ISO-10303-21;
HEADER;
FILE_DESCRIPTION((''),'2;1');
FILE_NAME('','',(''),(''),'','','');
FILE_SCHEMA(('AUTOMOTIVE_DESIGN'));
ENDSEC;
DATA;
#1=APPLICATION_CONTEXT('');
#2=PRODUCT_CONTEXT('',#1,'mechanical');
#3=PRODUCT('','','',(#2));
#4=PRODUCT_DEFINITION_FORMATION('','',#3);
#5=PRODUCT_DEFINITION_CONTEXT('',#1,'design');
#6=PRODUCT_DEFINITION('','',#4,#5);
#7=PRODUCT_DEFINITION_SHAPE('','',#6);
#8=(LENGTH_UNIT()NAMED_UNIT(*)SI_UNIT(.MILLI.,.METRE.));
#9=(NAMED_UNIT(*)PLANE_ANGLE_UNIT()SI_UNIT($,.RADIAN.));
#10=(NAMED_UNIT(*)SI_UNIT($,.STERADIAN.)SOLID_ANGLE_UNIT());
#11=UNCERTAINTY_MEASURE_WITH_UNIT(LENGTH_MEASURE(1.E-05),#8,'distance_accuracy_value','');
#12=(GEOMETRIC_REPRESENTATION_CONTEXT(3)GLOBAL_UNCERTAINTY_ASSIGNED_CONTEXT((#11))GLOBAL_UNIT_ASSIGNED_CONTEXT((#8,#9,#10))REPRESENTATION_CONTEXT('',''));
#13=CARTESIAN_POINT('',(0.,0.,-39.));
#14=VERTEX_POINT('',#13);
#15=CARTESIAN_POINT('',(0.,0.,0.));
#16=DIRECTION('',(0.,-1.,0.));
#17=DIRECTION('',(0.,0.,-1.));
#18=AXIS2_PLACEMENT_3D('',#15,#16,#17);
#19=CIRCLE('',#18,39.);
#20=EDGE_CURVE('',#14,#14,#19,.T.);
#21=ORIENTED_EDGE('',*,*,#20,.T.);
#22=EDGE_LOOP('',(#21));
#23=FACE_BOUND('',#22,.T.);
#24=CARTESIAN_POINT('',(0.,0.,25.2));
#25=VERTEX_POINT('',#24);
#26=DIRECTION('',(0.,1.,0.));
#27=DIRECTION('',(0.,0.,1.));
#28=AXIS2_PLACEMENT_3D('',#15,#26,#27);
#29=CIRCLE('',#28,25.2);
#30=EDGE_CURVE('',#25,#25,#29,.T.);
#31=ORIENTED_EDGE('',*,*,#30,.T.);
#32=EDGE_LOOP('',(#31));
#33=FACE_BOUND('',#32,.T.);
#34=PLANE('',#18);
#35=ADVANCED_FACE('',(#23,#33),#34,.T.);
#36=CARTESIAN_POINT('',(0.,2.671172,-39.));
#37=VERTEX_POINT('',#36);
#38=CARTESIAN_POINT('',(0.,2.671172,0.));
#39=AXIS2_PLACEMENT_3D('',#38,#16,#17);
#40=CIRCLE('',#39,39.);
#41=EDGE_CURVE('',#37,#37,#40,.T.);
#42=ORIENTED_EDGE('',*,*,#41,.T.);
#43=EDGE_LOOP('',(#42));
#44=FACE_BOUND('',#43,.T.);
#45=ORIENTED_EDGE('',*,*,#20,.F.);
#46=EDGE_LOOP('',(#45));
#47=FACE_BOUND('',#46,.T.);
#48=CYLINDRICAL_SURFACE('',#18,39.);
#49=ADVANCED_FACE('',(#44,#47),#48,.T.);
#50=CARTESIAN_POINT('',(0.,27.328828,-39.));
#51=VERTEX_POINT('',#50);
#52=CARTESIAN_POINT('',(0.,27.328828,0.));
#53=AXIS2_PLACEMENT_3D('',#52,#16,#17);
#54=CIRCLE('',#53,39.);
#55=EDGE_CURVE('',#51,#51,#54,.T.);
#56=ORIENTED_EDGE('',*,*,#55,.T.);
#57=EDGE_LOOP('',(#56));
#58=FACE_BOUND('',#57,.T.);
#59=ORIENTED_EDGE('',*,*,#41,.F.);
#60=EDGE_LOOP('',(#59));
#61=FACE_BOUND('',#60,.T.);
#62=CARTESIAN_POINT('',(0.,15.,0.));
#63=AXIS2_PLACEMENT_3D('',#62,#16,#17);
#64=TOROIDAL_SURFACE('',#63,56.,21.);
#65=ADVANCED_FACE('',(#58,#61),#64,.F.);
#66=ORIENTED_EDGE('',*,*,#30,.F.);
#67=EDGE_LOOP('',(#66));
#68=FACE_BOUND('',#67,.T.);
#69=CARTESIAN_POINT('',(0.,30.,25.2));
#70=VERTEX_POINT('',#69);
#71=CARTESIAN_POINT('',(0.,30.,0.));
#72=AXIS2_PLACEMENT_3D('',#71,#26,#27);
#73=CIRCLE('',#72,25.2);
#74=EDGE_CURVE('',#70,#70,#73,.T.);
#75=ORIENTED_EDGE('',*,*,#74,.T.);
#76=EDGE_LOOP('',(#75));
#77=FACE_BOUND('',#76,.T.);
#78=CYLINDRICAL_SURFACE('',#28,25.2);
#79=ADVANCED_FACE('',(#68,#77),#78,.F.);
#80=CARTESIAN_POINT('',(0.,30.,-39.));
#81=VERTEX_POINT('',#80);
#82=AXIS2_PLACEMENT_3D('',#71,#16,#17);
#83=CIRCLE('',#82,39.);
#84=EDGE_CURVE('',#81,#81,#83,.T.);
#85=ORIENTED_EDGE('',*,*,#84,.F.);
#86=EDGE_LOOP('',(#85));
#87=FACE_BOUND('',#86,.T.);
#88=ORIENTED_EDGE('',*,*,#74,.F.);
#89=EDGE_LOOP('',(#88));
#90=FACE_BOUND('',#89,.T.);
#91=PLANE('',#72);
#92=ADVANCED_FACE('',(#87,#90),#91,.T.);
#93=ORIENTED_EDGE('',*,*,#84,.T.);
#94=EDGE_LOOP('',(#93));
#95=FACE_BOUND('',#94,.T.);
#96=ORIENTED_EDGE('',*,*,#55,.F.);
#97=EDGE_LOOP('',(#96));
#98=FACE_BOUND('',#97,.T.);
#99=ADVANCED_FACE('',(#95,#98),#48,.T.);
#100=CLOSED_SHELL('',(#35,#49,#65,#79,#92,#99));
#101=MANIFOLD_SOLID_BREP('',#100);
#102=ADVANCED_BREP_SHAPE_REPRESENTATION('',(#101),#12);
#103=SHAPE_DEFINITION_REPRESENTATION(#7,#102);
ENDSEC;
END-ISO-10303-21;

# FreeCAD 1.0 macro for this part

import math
import FreeCAD as App
import Part
import Sketcher
from FreeCAD import Vector
Q = App.Units.Quantity

doc = App.newDocument("Part")
body = doc.addObject("PartDesign::Body", "Body")

# Sketch on XY plane
sketch1 = body.newObject("Sketcher::SketchObject", "Sketch")
sketch1.AttachmentSupport = (doc.getObject("XY_Plane"), [""])
sketch1.MapMode = "FlatFace"
sketch1.addGeometry(Part.LineSegment(Vector(39, 27.3, 0), Vector(39, 30, 0)), False)
sketch1.addGeometry(Part.LineSegment(Vector(39, 30, 0), Vector(0, 30, 0)), False)
sketch1.addGeometry(Part.LineSegment(Vector(0, 30, 0), Vector(0, 0, 0)), False)
sketch1.addGeometry(Part.LineSegment(Vector(0, 0, 0), Vector(39, 0, 0)), False)
sketch1.addGeometry(Part.LineSegment(Vector(39, 0, 0), Vector(39, 2.7, 0)), False)
sketch1.addGeometry(Part.ArcOfCircle(Part.Circle(Vector(56, 15, 0), Vector(0, 0, 1), 21), math.radians(144), math.radians(216)), False)
sketch1.addConstraint(Sketcher.Constraint("Coincident", 0, 2, 1, 1))
sketch1.addConstraint(Sketcher.Constraint("Coincident", 1, 2, 2, 1))
sketch1.addConstraint(Sketcher.Constraint("Coincident", 2, 2, 3, 1))
sketch1.addConstraint(Sketcher.Constraint("Coincident", 3, 2, 4, 1))
sketch1.addConstraint(Sketcher.Constraint("Coincident", 4, 2, 5, 2))
sketch1.addConstraint(Sketcher.Constraint("Coincident", 5, 1, 0, 1))
sketch1.addConstraint(Sketcher.Constraint("Vertical", 0))
sketch1.addConstraint(Sketcher.Constraint("Horizontal", 1))
sketch1.addConstraint(Sketcher.Constraint("Vertical", 2))
sketch1.addConstraint(Sketcher.Constraint("Horizontal", 3))
sketch1.addConstraint(Sketcher.Constraint("Vertical", 4))
sketch1.addConstraint(Sketcher.Constraint("Coincident", 2, 2, -1, 1))
sketch1.addConstraint(Sketcher.Constraint("Vertical", 0, 2, 3, 2))
sketch1.addConstraint(Sketcher.Constraint("Equal", 0, 4))
sketch1.addConstraint(Sketcher.Constraint("Radius", 5, Q("21 mm")))
sketch1.addConstraint(Sketcher.Constraint("DistanceX", 1, 2, 1, 1, Q("39 mm")))
sketch1.addConstraint(Sketcher.Constraint("DistanceY", 2, 2, 2, 1, Q("30 mm")))
sketch1.addConstraint(Sketcher.Constraint("DistanceX", -1, 1, 5, 3, Q("56 mm")))
revolution = body.newObject("PartDesign::Revolution", "Revolution")
revolution.Profile = sketch1
revolution.ReferenceAxis = (sketch1, ["V_Axis"])
revolution.Angle = 360

# Sketch on XZ plane
sketch2 = body.newObject("Sketcher::SketchObject", "Sketch001")
sketch2.AttachmentSupport = (doc.getObject("XZ_Plane"), [""])
sketch2.MapMode = "FlatFace"
sketch2.AttachmentOffset = App.Placement(Vector(0, 0, -30), App.Rotation())
sketch2.addGeometry(Part.Circle(Vector(0, 0, 0), Vector(0, 0, 1), 25), False)
sketch2.addConstraint(Sketcher.Constraint("Coincident", 0, 3, -1, 1))
sketch2.addConstraint(Sketcher.Constraint("Diameter", 0, Q("50.4 mm")))
pocket1 = body.newObject("PartDesign::Pocket", "Pocket")
pocket1.Profile = sketch2
pocket1.Type = "ThroughAll"
pocket1.Reversed = True

doc.recompute()
